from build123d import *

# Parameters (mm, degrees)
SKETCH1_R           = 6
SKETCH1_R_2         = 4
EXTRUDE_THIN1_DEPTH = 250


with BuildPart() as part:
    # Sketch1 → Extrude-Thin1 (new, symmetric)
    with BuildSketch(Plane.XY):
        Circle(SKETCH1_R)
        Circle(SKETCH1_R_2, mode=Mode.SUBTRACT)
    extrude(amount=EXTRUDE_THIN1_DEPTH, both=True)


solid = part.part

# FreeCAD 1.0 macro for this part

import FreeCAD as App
import Part
import Sketcher
from FreeCAD import Vector

doc = App.newDocument("Part")
body = doc.addObject("PartDesign::Body", "Body")

# Sketch on XY plane
sketch1 = body.newObject("Sketcher::SketchObject", "Sketch")
sketch1.AttachmentSupport = (doc.getObject("XY_Plane"), [""])
sketch1.MapMode = "FlatFace"
sketch1.addGeometry([
    Part.Circle(Vector(0, 0, 0), Vector(0, 0, 1), 6),
    Part.Circle(Vector(0, 0, 0), Vector(0, 0, 1), 4),
], False)
sketch1.addConstraint([
    Sketcher.Constraint("Coincident", 0, 3, -1, 1),
    Sketcher.Constraint("Coincident", 1, 3, -1, 1),
    Sketcher.Constraint("Diameter", 0, 12.0),
    Sketcher.Constraint("Diameter", 1, 8.0),
])
pad1 = body.newObject("PartDesign::Pad", "Pad")
pad1.Profile = sketch1
pad1.Length = 500
pad1.Midplane = True

doc.recompute()
